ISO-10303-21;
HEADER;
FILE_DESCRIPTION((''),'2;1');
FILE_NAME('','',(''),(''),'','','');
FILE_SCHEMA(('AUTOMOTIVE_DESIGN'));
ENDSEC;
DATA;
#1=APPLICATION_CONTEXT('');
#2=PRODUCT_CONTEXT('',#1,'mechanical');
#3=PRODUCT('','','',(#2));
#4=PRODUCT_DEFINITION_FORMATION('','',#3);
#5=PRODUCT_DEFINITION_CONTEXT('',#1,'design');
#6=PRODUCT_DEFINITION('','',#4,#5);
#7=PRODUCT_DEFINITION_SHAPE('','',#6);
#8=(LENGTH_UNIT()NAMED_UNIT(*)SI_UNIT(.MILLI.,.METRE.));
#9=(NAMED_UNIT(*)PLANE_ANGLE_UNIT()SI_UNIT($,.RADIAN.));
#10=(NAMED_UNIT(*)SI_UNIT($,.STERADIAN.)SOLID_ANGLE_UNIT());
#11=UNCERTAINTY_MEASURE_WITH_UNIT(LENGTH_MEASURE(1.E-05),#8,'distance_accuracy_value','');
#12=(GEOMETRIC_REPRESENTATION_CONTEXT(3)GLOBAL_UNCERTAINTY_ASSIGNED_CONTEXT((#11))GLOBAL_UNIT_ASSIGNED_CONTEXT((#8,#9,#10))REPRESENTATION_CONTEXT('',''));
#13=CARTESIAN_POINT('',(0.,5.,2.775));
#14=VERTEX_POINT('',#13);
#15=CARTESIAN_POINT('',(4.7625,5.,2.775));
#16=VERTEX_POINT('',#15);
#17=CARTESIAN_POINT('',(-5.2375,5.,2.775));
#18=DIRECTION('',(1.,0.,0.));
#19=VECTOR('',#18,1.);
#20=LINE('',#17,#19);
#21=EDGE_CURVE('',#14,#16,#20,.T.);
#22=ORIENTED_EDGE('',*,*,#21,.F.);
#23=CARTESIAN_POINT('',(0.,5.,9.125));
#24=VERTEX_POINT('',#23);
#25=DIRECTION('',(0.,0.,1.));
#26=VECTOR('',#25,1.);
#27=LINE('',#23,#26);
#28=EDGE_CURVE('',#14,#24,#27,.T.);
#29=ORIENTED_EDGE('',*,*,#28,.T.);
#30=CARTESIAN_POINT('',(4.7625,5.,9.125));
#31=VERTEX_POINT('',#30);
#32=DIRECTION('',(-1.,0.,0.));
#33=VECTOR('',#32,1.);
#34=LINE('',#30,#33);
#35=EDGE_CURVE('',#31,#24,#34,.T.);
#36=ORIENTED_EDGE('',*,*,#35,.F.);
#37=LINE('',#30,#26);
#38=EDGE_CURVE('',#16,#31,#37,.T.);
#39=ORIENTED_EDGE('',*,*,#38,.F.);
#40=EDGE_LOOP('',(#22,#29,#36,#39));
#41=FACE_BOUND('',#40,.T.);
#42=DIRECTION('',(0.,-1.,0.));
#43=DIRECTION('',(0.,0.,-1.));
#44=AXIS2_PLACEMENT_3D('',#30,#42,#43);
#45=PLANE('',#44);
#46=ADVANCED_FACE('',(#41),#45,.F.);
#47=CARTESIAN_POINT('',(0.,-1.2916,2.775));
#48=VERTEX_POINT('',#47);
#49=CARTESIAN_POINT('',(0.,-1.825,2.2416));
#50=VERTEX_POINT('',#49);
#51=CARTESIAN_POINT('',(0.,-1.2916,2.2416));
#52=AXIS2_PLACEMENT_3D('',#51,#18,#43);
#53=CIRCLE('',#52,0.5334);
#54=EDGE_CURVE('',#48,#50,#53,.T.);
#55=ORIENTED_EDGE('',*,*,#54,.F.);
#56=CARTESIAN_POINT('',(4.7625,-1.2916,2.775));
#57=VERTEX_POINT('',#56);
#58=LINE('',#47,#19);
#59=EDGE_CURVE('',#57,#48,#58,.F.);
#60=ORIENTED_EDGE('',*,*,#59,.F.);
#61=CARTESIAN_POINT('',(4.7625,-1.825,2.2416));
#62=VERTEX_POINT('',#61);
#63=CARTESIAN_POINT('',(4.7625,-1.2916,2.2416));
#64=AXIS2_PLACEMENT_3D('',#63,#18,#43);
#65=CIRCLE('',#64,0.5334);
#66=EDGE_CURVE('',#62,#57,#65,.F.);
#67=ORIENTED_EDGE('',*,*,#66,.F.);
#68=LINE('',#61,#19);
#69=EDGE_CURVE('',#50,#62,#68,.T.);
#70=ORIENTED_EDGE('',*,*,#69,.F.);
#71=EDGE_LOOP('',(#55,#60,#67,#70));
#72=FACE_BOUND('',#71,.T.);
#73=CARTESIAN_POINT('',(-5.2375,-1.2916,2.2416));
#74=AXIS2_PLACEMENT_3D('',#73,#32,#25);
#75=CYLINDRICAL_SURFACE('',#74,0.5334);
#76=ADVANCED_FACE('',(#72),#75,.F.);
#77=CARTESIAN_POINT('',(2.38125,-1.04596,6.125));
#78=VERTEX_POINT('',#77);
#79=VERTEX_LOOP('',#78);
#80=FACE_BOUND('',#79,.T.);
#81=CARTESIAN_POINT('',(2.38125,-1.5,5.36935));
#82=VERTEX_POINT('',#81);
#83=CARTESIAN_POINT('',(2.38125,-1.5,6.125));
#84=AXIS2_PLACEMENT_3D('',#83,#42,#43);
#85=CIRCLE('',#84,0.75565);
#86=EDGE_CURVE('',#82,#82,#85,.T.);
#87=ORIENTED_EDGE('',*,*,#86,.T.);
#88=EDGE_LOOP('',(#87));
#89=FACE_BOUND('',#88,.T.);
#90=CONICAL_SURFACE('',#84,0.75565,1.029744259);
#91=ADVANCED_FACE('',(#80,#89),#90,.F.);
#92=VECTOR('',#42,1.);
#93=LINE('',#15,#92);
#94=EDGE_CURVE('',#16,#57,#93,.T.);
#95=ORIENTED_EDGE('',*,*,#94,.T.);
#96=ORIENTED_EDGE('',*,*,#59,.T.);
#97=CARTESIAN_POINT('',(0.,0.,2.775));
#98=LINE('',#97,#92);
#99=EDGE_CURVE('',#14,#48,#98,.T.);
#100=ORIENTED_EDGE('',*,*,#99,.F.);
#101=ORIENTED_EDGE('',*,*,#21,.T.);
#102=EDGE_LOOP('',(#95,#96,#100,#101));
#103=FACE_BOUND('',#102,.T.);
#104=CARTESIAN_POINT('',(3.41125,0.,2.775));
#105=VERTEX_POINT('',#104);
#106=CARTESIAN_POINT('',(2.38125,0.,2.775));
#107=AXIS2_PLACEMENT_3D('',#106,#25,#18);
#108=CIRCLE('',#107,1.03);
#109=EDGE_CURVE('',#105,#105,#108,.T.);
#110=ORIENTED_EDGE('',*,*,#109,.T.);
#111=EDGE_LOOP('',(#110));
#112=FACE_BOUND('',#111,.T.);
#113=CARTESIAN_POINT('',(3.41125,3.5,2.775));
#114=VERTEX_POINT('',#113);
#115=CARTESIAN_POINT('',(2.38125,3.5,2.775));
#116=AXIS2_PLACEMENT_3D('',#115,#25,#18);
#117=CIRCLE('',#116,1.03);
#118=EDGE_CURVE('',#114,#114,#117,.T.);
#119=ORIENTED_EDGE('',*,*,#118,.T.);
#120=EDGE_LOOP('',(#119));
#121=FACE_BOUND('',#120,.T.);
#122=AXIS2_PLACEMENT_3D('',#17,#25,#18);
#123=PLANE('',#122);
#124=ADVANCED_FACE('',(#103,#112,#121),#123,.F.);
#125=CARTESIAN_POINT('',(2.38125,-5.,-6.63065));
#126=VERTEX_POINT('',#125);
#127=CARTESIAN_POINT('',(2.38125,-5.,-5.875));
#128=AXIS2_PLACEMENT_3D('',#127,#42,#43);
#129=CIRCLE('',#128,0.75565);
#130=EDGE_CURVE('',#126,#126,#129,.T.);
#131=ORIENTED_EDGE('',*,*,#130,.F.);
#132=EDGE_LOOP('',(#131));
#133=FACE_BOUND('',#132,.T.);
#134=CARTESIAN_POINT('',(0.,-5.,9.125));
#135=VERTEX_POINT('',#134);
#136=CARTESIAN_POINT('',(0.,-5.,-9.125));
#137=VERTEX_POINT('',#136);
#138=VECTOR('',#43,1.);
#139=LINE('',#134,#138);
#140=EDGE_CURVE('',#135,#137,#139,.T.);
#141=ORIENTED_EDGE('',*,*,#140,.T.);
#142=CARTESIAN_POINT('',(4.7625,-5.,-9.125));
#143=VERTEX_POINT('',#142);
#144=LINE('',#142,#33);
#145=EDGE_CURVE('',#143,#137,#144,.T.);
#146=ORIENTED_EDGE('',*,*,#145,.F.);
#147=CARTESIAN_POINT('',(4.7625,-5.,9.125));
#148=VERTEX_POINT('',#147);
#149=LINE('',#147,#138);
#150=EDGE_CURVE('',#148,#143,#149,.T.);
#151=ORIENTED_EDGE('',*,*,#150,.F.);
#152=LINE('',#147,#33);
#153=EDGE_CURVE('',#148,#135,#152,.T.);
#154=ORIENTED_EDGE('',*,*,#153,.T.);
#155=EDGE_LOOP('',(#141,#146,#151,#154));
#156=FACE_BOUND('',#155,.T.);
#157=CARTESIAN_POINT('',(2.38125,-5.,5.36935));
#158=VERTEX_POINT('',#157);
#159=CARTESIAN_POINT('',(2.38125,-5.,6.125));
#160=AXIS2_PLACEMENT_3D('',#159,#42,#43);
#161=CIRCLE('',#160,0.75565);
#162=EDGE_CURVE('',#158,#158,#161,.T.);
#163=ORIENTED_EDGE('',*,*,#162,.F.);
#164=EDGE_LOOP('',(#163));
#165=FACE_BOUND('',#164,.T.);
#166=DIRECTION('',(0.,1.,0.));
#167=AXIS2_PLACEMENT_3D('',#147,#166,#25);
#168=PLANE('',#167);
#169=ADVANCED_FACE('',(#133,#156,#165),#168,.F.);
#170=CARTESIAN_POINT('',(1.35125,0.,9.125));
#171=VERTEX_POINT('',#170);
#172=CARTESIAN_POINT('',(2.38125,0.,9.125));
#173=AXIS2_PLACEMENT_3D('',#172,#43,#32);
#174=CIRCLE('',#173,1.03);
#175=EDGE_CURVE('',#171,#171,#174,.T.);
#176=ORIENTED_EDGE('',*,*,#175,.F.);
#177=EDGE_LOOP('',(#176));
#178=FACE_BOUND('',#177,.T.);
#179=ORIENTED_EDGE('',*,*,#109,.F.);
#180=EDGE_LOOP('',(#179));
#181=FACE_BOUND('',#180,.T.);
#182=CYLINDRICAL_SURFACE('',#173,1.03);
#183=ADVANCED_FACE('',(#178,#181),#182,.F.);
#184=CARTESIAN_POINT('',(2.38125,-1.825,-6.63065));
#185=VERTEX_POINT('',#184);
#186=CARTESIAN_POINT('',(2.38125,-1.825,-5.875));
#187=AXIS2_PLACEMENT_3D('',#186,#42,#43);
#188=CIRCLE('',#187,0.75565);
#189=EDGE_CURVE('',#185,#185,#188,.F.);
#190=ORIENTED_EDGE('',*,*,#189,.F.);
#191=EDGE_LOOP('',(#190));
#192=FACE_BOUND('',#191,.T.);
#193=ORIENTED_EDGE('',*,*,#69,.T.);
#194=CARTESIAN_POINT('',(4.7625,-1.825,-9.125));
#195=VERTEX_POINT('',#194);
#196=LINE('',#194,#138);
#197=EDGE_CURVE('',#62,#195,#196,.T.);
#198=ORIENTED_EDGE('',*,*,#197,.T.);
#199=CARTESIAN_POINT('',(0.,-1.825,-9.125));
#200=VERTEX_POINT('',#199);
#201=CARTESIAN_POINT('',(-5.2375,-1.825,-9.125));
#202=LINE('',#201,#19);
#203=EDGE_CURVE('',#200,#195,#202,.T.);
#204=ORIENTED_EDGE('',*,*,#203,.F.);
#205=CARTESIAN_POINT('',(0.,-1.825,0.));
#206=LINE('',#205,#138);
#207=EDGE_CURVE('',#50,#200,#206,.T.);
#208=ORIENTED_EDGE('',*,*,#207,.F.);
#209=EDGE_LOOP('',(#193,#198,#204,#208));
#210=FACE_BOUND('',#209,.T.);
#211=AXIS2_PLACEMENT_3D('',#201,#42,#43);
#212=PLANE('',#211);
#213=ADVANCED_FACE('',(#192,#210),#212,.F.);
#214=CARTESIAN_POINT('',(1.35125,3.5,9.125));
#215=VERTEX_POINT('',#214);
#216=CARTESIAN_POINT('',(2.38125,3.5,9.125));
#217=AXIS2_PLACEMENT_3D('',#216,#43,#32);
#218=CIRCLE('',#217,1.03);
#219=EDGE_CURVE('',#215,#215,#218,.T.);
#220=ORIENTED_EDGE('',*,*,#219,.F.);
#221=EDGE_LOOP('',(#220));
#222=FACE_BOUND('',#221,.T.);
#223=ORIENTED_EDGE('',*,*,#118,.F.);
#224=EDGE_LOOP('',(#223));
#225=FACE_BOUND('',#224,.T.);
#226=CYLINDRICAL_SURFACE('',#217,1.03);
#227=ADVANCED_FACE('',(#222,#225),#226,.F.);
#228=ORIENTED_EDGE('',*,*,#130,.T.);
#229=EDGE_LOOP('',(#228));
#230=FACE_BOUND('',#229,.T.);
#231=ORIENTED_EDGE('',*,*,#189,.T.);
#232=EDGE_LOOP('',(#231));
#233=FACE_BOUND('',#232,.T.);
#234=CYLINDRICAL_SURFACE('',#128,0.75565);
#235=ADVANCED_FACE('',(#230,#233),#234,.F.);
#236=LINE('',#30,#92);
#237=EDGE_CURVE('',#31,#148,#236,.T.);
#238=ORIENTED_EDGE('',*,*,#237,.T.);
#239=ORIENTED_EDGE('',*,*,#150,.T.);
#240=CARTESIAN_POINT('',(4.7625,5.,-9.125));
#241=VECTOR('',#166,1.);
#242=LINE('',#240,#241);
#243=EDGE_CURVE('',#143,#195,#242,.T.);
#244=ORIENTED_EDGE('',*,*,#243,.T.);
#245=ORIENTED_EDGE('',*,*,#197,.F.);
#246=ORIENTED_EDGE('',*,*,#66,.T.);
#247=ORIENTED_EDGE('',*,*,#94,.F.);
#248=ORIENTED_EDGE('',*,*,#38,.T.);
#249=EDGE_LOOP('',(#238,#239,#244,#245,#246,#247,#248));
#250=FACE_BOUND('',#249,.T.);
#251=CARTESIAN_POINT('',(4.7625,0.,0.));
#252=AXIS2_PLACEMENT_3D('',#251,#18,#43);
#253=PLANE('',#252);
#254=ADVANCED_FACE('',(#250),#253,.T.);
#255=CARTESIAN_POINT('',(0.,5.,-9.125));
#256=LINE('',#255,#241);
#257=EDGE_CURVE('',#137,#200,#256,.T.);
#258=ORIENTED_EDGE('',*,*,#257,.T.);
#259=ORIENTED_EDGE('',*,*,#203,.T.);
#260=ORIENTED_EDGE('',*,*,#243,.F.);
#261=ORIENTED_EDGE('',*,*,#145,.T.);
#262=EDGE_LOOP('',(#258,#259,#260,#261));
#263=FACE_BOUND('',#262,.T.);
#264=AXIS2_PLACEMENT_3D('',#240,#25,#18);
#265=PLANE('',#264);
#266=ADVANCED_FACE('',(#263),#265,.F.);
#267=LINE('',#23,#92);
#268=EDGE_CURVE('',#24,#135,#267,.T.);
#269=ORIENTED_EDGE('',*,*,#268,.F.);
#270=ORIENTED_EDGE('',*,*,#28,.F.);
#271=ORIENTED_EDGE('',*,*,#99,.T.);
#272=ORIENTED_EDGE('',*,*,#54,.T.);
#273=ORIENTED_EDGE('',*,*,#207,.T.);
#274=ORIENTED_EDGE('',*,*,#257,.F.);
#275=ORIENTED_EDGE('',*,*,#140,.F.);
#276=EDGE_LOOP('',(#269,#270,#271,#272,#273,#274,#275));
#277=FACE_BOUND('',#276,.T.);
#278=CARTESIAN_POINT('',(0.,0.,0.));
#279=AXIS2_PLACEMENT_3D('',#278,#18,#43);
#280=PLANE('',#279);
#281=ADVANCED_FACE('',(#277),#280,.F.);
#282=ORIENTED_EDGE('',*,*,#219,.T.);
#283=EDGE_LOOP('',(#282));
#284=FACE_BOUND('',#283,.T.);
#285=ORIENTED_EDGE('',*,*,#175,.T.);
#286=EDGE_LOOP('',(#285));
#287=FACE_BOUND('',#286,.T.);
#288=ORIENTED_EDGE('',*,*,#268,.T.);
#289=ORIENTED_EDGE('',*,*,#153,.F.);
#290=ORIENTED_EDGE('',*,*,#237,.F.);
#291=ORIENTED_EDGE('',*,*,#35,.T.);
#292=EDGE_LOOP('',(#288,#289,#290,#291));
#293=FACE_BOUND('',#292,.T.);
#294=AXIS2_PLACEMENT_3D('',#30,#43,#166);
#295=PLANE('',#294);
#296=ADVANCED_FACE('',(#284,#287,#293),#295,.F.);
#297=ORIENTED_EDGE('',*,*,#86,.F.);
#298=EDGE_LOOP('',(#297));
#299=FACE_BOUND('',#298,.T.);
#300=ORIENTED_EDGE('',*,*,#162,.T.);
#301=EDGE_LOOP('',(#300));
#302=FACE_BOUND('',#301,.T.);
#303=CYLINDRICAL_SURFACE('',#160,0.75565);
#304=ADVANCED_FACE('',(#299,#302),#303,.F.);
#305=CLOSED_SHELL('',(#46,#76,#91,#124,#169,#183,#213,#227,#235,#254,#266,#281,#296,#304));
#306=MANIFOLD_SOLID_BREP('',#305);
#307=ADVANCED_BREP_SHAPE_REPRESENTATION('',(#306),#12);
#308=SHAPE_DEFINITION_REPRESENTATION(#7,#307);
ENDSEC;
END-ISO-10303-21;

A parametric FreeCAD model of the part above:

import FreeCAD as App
import Part
import Sketcher

V = App.Vector


def edges_at(feature, points):
    """Names of the edges that pass closest to the given points."""
    edges = feature.Shape.Edges
    near = lambda p: min(range(len(edges)), key=lambda i: edges[i].distToShape(Part.Vertex(*p))[0])
    return sorted({f"Edge{near(p) + 1}" for p in points})

doc = App.newDocument("Part")
body = doc.addObject("PartDesign::Body", "Body")

sketch1 = body.newObject("Sketcher::SketchObject", "Sketch")
sketch1.AttachmentSupport = (doc.getObject("YZ_Plane"), [""])
sketch1.MapMode = "FlatFace"
sketch1.addGeometry(Part.LineSegment(V(5, 9, 0), V(-5, 9, 0)), False)
sketch1.addGeometry(Part.LineSegment(V(-5, 9, 0), V(-5, -9, 0)), False)
sketch1.addGeometry(Part.LineSegment(V(-5, -9, 0), V(5, -9, 0)), False)
sketch1.addGeometry(Part.LineSegment(V(5, -9, 0), V(5, 9, 0)), False)
sketch1.addConstraint(Sketcher.Constraint("Coincident", 0, 2, 1, 1))
sketch1.addConstraint(Sketcher.Constraint("Coincident", 1, 2, 2, 1))
sketch1.addConstraint(Sketcher.Constraint("Coincident", 2, 2, 3, 1))
sketch1.addConstraint(Sketcher.Constraint("Coincident", 3, 2, 0, 1))
sketch1.addConstraint(Sketcher.Constraint("Horizontal", 0))
sketch1.addConstraint(Sketcher.Constraint("Vertical", 1))
sketch1.addConstraint(Sketcher.Constraint("Horizontal", 2))
sketch1.addConstraint(Sketcher.Constraint("Vertical", 3))
sketch1.addConstraint(Sketcher.Constraint("Symmetric", 0, 2, 2, 2, -1, 1))
sketch1.addConstraint(Sketcher.Constraint("DistanceX", 0, 2, 0, 1, 10.0))
sketch1.addConstraint(Sketcher.Constraint("DistanceY", 1, 2, 1, 1, 18.25))
pad1 = body.newObject("PartDesign::Pad", "Pad")
pad1.Profile = sketch1
pad1.Length = 4.7625

sketch2 = body.newObject("Sketcher::SketchObject", "Sketch001")
sketch2.AttachmentSupport = (doc.getObject("XZ_Plane"), [""])
sketch2.MapMode = "FlatFace"
sketch2.AttachmentOffset = App.Placement(V(0, 0, 5), App.Rotation())
sketch2.addGeometry(Part.Circle(V(2.4, 6.1, 0), V(0, 0, 1), 0.8), False)
sketch2.addGeometry(Part.Circle(V(2.4, -5.9, 0), V(0, 0, 1), 0.8), False)
sketch2.addConstraint(Sketcher.Constraint("Equal", 0, 1))
sketch2.addConstraint(Sketcher.Constraint("Vertical", 0, 3, 1, 3))
sketch2.addConstraint(Sketcher.Constraint("DistanceY", 1, 3, 0, 3, 12.0))
sketch2.addConstraint(Sketcher.Constraint("Diameter", 0, 1.5113))
sketch2.addConstraint(Sketcher.Constraint("DistanceY", -1, 1, 0, 3, 6.125))
sketch2.addConstraint(Sketcher.Constraint("DistanceX", -1, 1, 0, 3, 2.38125))
doc.recompute()
hole = body.newObject("PartDesign::Hole", "Hole")
hole.Profile = sketch2
hole.ThreadType = "None"
hole.Diameter = 1.5113
hole.DepthType = "Dimension"
hole.Depth = 3.5
hole.DrillPoint = "Angled"
hole.DrillPointAngle = 118

sketch3 = body.newObject("Sketcher::SketchObject", "Sketch002")
sketch3.AttachmentSupport = (doc.getObject("YZ_Plane"), [""])
sketch3.MapMode = "FlatFace"
sketch3.AttachmentOffset = App.Placement(V(0, 0, 4.7625), App.Rotation())
sketch3.addGeometry(Part.LineSegment(V(5, 3, 0), V(-2, 3, 0)), False)
sketch3.addGeometry(Part.LineSegment(V(-2, 3, 0), V(-2, -9, 0)), False)
sketch3.addGeometry(Part.LineSegment(V(-2, -9, 0), V(5, -9, 0)), False)
sketch3.addGeometry(Part.LineSegment(V(5, -9, 0), V(5, 3, 0)), False)
sketch3.addConstraint(Sketcher.Constraint("Coincident", 0, 2, 1, 1))
sketch3.addConstraint(Sketcher.Constraint("Coincident", 1, 2, 2, 1))
sketch3.addConstraint(Sketcher.Constraint("Coincident", 2, 2, 3, 1))
sketch3.addConstraint(Sketcher.Constraint("Coincident", 3, 2, 0, 1))
sketch3.addConstraint(Sketcher.Constraint("Horizontal", 0))
sketch3.addConstraint(Sketcher.Constraint("Vertical", 1))
sketch3.addConstraint(Sketcher.Constraint("Horizontal", 2))
sketch3.addConstraint(Sketcher.Constraint("Vertical", 3))
sketch3.addConstraint(Sketcher.Constraint("DistanceY", 1, 2, 1, 1, 11.9))
sketch3.addConstraint(Sketcher.Constraint("DistanceX", -1, 1, 2, 2, 5.0))
sketch3.addConstraint(Sketcher.Constraint("DistanceX", 0, 2, 0, 1, 6.825))
sketch3.addConstraint(Sketcher.Constraint("DistanceY", -1, 1, 0, 2, 2.775))
pocket1 = body.newObject("PartDesign::Pocket", "Pocket")
pocket1.Profile = sketch3
pocket1.Length = 10
doc.recompute()

fillet = body.newObject("PartDesign::Fillet", "Fillet")
fillet.Base = (pocket1, edges_at(pocket1, [(2.381, -1.825, 2.775)]))
fillet.Radius = 0.5334

sketch4 = body.newObject("Sketcher::SketchObject", "Sketch003")
sketch4.AttachmentSupport = (doc.getObject("XY_Plane"), [""])
sketch4.MapMode = "FlatFace"
sketch4.AttachmentOffset = App.Placement(V(0, 0, -9.125), App.Rotation())
sketch4.addGeometry(Part.Circle(V(2.4, 3.5, 0), V(0, 0, 1), 1), False)
sketch4.addGeometry(Part.Circle(V(2.4, 0, 0), V(0, 0, 1), 1), False)
sketch4.addConstraint(Sketcher.Constraint("Equal", 0, 1))
sketch4.addConstraint(Sketcher.Constraint("PointOnObject", 1, 3, -1))
sketch4.addConstraint(Sketcher.Constraint("Vertical", 0, 3, 1, 3))
sketch4.addConstraint(Sketcher.Constraint("Diameter", 0, 2.06))
sketch4.addConstraint(Sketcher.Constraint("DistanceY", -1, 1, 0, 3, 3.5))
sketch4.addConstraint(Sketcher.Constraint("DistanceX", -1, 1, 0, 3, 2.38125))
pocket2 = body.newObject("PartDesign::Pocket", "Pocket001")
pocket2.Profile = sketch4
pocket2.Type = "ThroughAll"
pocket2.Reversed = True

doc.recompute()
